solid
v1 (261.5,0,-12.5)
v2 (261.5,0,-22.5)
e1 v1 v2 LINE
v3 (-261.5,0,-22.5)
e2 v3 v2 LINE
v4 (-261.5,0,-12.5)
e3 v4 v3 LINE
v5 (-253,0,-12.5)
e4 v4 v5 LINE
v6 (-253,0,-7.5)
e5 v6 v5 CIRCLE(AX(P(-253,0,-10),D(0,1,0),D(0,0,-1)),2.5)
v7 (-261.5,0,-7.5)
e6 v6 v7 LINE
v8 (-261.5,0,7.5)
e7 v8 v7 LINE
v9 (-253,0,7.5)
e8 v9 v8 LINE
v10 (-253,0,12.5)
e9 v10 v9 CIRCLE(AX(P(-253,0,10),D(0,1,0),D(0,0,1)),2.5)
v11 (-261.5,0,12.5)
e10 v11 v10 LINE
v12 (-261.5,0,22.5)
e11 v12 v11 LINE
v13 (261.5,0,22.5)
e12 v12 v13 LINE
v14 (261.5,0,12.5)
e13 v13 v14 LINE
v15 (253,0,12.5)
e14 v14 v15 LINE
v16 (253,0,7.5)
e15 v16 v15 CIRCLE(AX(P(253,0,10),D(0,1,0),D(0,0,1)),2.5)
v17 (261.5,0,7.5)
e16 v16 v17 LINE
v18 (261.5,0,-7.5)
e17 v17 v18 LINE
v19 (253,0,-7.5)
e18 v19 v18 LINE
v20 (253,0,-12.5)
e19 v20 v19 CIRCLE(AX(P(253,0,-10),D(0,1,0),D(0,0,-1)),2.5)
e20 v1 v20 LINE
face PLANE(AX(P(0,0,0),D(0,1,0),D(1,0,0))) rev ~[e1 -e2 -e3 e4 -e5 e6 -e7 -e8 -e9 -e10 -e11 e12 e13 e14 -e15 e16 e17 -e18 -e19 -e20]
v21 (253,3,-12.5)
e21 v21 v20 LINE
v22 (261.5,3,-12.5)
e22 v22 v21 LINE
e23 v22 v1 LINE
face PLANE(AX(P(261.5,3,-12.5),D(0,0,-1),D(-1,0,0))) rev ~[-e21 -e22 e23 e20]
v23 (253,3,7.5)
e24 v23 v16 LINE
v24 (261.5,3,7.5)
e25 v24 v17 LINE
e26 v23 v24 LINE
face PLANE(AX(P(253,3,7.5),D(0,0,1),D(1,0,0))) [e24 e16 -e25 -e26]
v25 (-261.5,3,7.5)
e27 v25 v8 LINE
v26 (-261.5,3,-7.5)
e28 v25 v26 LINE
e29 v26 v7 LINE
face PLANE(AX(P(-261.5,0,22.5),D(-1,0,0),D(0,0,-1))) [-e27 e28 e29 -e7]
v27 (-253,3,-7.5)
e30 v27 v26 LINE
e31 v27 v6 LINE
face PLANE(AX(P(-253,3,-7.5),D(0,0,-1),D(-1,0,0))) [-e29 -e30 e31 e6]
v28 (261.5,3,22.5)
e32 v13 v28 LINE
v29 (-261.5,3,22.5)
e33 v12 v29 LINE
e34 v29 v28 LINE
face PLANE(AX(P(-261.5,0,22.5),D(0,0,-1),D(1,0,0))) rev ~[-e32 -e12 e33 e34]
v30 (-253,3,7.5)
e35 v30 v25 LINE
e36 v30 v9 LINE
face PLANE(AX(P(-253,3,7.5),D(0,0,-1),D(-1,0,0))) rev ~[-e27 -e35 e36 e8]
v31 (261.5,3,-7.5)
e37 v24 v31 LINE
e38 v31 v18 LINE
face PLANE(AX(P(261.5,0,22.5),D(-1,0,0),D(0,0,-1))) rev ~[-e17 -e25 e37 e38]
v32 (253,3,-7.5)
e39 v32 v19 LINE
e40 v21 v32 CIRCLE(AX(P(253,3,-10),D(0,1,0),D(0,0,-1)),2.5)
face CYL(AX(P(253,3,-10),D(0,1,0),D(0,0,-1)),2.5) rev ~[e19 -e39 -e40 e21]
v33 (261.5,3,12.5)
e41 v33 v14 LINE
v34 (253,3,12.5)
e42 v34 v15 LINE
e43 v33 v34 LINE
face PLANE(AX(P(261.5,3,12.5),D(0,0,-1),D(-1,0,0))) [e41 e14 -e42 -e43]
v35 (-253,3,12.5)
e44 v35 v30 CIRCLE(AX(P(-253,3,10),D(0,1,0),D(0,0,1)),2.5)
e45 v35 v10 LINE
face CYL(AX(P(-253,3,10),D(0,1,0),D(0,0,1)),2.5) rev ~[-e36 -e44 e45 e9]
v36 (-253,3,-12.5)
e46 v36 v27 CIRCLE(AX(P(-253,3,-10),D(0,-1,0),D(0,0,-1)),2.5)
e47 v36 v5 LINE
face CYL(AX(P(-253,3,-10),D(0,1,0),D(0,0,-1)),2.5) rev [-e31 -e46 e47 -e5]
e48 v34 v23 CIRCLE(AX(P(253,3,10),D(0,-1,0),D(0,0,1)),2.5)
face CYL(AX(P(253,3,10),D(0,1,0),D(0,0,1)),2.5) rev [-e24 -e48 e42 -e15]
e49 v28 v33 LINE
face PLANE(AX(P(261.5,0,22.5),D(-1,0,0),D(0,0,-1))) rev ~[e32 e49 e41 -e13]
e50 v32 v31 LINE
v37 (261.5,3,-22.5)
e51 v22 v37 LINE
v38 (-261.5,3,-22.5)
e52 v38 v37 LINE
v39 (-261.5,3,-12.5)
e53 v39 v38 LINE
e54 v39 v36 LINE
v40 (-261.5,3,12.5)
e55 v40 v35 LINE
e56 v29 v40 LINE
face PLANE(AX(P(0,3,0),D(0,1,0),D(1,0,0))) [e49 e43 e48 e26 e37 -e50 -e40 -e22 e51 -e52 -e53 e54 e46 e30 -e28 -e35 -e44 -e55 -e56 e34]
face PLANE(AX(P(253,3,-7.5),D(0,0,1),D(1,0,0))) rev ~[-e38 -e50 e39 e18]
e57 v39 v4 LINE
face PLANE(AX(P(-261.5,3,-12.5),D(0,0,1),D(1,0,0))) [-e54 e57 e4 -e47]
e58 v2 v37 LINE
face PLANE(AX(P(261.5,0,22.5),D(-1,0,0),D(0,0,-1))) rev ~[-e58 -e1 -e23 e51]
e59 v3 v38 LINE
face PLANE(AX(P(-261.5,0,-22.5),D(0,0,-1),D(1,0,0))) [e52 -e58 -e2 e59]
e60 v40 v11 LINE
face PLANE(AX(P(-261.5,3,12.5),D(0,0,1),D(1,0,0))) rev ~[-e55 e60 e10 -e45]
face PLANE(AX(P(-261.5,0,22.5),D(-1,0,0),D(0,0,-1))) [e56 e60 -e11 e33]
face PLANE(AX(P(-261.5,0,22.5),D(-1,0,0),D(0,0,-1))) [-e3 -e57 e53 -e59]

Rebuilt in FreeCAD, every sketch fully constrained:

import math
import FreeCAD as App
import Part
import Sketcher
from FreeCAD import Vector
Q = App.Units.Quantity

doc = App.newDocument("Part")
body = doc.addObject("PartDesign::Body", "Body")

sketch1 = body.newObject("Sketcher::SketchObject", "Sketch")
sketch1.AttachmentSupport = (doc.getObject("XZ_Plane"), [""])
sketch1.MapMode = "FlatFace"
sketch1.addGeometry([
    Part.LineSegment(Vector(-261.5, -22.5, 0), Vector(-261.5, 22.5, 0)),
    Part.LineSegment(Vector(-261.5, 22.5, 0), Vector(261.5, 22.5, 0)),
    Part.LineSegment(Vector(261.5, 22.5, 0), Vector(261.5, -22.5, 0)),
    Part.LineSegment(Vector(261.5, -22.5, 0), Vector(-261.5, -22.5, 0)),
], False)
sketch1.addConstraint([
    Sketcher.Constraint("Coincident", 0, 2, 1, 1),
    Sketcher.Constraint("Coincident", 1, 2, 2, 1),
    Sketcher.Constraint("Coincident", 2, 2, 3, 1),
    Sketcher.Constraint("Coincident", 3, 2, 0, 1),
    Sketcher.Constraint("Vertical", 0),
    Sketcher.Constraint("Horizontal", 1),
    Sketcher.Constraint("Vertical", 2),
    Sketcher.Constraint("Horizontal", 3),
    Sketcher.Constraint("Symmetric", 0, 2, 2, 2, -1, 1),
    Sketcher.Constraint("DistanceX", 1, 1, 1, 2, Q("523 mm")),
    Sketcher.Constraint("DistanceY", 0, 1, 0, 2, Q("45 mm")),
])
pad1 = body.newObject("PartDesign::Pad", "Pad")
pad1.Profile = sketch1
pad1.Length = 3
pad1.Reversed = True

sketch2 = body.newObject("Sketcher::SketchObject", "Sketch001")
sketch2.AttachmentSupport = (doc.getObject("XZ_Plane"), [""])
sketch2.MapMode = "FlatFace"
sketch2.AttachmentOffset = App.Placement(Vector(0, 0, -3), App.Rotation())
sketch2.addGeometry([
    Part.LineSegment(Vector(-253, -12.5, 0), Vector(-261.5, -12.5, 0)),
    Part.ArcOfCircle(Part.Circle(Vector(-261.5, -10, 0), Vector(0, 0, 1), 2.5), math.radians(90), math.radians(270)),
    Part.LineSegment(Vector(-261.5, -7.5, 0), Vector(-253, -7.5, 0)),
    Part.ArcOfCircle(Part.Circle(Vector(-253, -10, 0), Vector(0, 0, 1), 2.5), math.radians(-90), math.radians(90)),
    Part.LineSegment(Vector(-261.5, 12.5, 0), Vector(-253, 12.5, 0)),
    Part.ArcOfCircle(Part.Circle(Vector(-253, 10, 0), Vector(0, 0, 1), 2.5), math.radians(-90), math.radians(90)),
    Part.LineSegment(Vector(-253, 7.5, 0), Vector(-261.5, 7.5, 0)),
    Part.ArcOfCircle(Part.Circle(Vector(-261.5, 10, 0), Vector(0, 0, 1), 2.5), math.radians(90), math.radians(270)),
    Part.LineSegment(Vector(261.5, -12.5, 0), Vector(253, -12.5, 0)),
    Part.ArcOfCircle(Part.Circle(Vector(253, -10, 0), Vector(0, 0, 1), 2.5), math.radians(90), math.radians(270)),
    Part.LineSegment(Vector(253, -7.5, 0), Vector(261.5, -7.5, 0)),
    Part.ArcOfCircle(Part.Circle(Vector(261.5, -10, 0), Vector(0, 0, 1), 2.5), math.radians(-90), math.radians(90)),
    Part.LineSegment(Vector(253, 12.5, 0), Vector(261.5, 12.5, 0)),
    Part.ArcOfCircle(Part.Circle(Vector(261.5, 10, 0), Vector(0, 0, 1), 2.5), math.radians(-90), math.radians(90)),
    Part.LineSegment(Vector(261.5, 7.5, 0), Vector(253, 7.5, 0)),
    Part.ArcOfCircle(Part.Circle(Vector(253, 10, 0), Vector(0, 0, 1), 2.5), math.radians(90), math.radians(270)),
], False)
sketch2.addConstraint([
    Sketcher.Constraint("Tangent", 0, 2, 1, 2),
    Sketcher.Constraint("Tangent", 1, 1, 2, 1),
    Sketcher.Constraint("Tangent", 2, 2, 3, 2),
    Sketcher.Constraint("Tangent", 3, 1, 0, 1),
    Sketcher.Constraint("Tangent", 4, 2, 5, 2),
    Sketcher.Constraint("Tangent", 5, 1, 6, 1),
    Sketcher.Constraint("Tangent", 6, 2, 7, 2),
    Sketcher.Constraint("Tangent", 7, 1, 4, 1),
    Sketcher.Constraint("Tangent", 8, 2, 9, 2),
    Sketcher.Constraint("Tangent", 9, 1, 10, 1),
    Sketcher.Constraint("Tangent", 10, 2, 11, 2),
    Sketcher.Constraint("Tangent", 11, 1, 8, 1),
    Sketcher.Constraint("Tangent", 12, 2, 13, 2),
    Sketcher.Constraint("Tangent", 13, 1, 14, 1),
    Sketcher.Constraint("Tangent", 14, 2, 15, 2),
    Sketcher.Constraint("Tangent", 15, 1, 12, 1),
    Sketcher.Constraint("Horizontal", 0),
    Sketcher.Constraint("Horizontal", 2),
    Sketcher.Constraint("Horizontal", 4),
    Sketcher.Constraint("Horizontal", 6),
    Sketcher.Constraint("Horizontal", 8),
    Sketcher.Constraint("Horizontal", 10),
    Sketcher.Constraint("Horizontal", 12),
    Sketcher.Constraint("Horizontal", 14),
    Sketcher.Constraint("Equal", 3, 5),
    Sketcher.Constraint("Equal", 7, 9),
    Sketcher.Constraint("Equal", 11, 13),
    Sketcher.Constraint("Symmetric", 5, 3, 9, 3, -1, 1),
    Sketcher.Constraint("Symmetric", 1, 3, 13, 3, -1, 1),
    Sketcher.Constraint("Symmetric", 3, 3, 9, 3, -2),
    Sketcher.Constraint("Vertical", 1, 3, 7, 3),
    Sketcher.Constraint("Vertical", 11, 3, 13, 3),
    Sketcher.Constraint("Vertical", 9, 3, 15, 3),
    Sketcher.Constraint("Radius", 1, Q("2.5 mm")),
    Sketcher.Constraint("DistanceX", 0, 2, 0, 1, Q("8.5 mm")),
    Sketcher.Constraint("DistanceY", 1, 3, -1, 1, Q("10 mm")),
    Sketcher.Constraint("DistanceX", 3, 3, -1, 1, Q("253 mm")),
])
pocket1 = body.newObject("PartDesign::Pocket", "Pocket")
pocket1.Profile = sketch2
pocket1.Type = "ThroughAll"
pocket1.Reversed = True

doc.recompute()
